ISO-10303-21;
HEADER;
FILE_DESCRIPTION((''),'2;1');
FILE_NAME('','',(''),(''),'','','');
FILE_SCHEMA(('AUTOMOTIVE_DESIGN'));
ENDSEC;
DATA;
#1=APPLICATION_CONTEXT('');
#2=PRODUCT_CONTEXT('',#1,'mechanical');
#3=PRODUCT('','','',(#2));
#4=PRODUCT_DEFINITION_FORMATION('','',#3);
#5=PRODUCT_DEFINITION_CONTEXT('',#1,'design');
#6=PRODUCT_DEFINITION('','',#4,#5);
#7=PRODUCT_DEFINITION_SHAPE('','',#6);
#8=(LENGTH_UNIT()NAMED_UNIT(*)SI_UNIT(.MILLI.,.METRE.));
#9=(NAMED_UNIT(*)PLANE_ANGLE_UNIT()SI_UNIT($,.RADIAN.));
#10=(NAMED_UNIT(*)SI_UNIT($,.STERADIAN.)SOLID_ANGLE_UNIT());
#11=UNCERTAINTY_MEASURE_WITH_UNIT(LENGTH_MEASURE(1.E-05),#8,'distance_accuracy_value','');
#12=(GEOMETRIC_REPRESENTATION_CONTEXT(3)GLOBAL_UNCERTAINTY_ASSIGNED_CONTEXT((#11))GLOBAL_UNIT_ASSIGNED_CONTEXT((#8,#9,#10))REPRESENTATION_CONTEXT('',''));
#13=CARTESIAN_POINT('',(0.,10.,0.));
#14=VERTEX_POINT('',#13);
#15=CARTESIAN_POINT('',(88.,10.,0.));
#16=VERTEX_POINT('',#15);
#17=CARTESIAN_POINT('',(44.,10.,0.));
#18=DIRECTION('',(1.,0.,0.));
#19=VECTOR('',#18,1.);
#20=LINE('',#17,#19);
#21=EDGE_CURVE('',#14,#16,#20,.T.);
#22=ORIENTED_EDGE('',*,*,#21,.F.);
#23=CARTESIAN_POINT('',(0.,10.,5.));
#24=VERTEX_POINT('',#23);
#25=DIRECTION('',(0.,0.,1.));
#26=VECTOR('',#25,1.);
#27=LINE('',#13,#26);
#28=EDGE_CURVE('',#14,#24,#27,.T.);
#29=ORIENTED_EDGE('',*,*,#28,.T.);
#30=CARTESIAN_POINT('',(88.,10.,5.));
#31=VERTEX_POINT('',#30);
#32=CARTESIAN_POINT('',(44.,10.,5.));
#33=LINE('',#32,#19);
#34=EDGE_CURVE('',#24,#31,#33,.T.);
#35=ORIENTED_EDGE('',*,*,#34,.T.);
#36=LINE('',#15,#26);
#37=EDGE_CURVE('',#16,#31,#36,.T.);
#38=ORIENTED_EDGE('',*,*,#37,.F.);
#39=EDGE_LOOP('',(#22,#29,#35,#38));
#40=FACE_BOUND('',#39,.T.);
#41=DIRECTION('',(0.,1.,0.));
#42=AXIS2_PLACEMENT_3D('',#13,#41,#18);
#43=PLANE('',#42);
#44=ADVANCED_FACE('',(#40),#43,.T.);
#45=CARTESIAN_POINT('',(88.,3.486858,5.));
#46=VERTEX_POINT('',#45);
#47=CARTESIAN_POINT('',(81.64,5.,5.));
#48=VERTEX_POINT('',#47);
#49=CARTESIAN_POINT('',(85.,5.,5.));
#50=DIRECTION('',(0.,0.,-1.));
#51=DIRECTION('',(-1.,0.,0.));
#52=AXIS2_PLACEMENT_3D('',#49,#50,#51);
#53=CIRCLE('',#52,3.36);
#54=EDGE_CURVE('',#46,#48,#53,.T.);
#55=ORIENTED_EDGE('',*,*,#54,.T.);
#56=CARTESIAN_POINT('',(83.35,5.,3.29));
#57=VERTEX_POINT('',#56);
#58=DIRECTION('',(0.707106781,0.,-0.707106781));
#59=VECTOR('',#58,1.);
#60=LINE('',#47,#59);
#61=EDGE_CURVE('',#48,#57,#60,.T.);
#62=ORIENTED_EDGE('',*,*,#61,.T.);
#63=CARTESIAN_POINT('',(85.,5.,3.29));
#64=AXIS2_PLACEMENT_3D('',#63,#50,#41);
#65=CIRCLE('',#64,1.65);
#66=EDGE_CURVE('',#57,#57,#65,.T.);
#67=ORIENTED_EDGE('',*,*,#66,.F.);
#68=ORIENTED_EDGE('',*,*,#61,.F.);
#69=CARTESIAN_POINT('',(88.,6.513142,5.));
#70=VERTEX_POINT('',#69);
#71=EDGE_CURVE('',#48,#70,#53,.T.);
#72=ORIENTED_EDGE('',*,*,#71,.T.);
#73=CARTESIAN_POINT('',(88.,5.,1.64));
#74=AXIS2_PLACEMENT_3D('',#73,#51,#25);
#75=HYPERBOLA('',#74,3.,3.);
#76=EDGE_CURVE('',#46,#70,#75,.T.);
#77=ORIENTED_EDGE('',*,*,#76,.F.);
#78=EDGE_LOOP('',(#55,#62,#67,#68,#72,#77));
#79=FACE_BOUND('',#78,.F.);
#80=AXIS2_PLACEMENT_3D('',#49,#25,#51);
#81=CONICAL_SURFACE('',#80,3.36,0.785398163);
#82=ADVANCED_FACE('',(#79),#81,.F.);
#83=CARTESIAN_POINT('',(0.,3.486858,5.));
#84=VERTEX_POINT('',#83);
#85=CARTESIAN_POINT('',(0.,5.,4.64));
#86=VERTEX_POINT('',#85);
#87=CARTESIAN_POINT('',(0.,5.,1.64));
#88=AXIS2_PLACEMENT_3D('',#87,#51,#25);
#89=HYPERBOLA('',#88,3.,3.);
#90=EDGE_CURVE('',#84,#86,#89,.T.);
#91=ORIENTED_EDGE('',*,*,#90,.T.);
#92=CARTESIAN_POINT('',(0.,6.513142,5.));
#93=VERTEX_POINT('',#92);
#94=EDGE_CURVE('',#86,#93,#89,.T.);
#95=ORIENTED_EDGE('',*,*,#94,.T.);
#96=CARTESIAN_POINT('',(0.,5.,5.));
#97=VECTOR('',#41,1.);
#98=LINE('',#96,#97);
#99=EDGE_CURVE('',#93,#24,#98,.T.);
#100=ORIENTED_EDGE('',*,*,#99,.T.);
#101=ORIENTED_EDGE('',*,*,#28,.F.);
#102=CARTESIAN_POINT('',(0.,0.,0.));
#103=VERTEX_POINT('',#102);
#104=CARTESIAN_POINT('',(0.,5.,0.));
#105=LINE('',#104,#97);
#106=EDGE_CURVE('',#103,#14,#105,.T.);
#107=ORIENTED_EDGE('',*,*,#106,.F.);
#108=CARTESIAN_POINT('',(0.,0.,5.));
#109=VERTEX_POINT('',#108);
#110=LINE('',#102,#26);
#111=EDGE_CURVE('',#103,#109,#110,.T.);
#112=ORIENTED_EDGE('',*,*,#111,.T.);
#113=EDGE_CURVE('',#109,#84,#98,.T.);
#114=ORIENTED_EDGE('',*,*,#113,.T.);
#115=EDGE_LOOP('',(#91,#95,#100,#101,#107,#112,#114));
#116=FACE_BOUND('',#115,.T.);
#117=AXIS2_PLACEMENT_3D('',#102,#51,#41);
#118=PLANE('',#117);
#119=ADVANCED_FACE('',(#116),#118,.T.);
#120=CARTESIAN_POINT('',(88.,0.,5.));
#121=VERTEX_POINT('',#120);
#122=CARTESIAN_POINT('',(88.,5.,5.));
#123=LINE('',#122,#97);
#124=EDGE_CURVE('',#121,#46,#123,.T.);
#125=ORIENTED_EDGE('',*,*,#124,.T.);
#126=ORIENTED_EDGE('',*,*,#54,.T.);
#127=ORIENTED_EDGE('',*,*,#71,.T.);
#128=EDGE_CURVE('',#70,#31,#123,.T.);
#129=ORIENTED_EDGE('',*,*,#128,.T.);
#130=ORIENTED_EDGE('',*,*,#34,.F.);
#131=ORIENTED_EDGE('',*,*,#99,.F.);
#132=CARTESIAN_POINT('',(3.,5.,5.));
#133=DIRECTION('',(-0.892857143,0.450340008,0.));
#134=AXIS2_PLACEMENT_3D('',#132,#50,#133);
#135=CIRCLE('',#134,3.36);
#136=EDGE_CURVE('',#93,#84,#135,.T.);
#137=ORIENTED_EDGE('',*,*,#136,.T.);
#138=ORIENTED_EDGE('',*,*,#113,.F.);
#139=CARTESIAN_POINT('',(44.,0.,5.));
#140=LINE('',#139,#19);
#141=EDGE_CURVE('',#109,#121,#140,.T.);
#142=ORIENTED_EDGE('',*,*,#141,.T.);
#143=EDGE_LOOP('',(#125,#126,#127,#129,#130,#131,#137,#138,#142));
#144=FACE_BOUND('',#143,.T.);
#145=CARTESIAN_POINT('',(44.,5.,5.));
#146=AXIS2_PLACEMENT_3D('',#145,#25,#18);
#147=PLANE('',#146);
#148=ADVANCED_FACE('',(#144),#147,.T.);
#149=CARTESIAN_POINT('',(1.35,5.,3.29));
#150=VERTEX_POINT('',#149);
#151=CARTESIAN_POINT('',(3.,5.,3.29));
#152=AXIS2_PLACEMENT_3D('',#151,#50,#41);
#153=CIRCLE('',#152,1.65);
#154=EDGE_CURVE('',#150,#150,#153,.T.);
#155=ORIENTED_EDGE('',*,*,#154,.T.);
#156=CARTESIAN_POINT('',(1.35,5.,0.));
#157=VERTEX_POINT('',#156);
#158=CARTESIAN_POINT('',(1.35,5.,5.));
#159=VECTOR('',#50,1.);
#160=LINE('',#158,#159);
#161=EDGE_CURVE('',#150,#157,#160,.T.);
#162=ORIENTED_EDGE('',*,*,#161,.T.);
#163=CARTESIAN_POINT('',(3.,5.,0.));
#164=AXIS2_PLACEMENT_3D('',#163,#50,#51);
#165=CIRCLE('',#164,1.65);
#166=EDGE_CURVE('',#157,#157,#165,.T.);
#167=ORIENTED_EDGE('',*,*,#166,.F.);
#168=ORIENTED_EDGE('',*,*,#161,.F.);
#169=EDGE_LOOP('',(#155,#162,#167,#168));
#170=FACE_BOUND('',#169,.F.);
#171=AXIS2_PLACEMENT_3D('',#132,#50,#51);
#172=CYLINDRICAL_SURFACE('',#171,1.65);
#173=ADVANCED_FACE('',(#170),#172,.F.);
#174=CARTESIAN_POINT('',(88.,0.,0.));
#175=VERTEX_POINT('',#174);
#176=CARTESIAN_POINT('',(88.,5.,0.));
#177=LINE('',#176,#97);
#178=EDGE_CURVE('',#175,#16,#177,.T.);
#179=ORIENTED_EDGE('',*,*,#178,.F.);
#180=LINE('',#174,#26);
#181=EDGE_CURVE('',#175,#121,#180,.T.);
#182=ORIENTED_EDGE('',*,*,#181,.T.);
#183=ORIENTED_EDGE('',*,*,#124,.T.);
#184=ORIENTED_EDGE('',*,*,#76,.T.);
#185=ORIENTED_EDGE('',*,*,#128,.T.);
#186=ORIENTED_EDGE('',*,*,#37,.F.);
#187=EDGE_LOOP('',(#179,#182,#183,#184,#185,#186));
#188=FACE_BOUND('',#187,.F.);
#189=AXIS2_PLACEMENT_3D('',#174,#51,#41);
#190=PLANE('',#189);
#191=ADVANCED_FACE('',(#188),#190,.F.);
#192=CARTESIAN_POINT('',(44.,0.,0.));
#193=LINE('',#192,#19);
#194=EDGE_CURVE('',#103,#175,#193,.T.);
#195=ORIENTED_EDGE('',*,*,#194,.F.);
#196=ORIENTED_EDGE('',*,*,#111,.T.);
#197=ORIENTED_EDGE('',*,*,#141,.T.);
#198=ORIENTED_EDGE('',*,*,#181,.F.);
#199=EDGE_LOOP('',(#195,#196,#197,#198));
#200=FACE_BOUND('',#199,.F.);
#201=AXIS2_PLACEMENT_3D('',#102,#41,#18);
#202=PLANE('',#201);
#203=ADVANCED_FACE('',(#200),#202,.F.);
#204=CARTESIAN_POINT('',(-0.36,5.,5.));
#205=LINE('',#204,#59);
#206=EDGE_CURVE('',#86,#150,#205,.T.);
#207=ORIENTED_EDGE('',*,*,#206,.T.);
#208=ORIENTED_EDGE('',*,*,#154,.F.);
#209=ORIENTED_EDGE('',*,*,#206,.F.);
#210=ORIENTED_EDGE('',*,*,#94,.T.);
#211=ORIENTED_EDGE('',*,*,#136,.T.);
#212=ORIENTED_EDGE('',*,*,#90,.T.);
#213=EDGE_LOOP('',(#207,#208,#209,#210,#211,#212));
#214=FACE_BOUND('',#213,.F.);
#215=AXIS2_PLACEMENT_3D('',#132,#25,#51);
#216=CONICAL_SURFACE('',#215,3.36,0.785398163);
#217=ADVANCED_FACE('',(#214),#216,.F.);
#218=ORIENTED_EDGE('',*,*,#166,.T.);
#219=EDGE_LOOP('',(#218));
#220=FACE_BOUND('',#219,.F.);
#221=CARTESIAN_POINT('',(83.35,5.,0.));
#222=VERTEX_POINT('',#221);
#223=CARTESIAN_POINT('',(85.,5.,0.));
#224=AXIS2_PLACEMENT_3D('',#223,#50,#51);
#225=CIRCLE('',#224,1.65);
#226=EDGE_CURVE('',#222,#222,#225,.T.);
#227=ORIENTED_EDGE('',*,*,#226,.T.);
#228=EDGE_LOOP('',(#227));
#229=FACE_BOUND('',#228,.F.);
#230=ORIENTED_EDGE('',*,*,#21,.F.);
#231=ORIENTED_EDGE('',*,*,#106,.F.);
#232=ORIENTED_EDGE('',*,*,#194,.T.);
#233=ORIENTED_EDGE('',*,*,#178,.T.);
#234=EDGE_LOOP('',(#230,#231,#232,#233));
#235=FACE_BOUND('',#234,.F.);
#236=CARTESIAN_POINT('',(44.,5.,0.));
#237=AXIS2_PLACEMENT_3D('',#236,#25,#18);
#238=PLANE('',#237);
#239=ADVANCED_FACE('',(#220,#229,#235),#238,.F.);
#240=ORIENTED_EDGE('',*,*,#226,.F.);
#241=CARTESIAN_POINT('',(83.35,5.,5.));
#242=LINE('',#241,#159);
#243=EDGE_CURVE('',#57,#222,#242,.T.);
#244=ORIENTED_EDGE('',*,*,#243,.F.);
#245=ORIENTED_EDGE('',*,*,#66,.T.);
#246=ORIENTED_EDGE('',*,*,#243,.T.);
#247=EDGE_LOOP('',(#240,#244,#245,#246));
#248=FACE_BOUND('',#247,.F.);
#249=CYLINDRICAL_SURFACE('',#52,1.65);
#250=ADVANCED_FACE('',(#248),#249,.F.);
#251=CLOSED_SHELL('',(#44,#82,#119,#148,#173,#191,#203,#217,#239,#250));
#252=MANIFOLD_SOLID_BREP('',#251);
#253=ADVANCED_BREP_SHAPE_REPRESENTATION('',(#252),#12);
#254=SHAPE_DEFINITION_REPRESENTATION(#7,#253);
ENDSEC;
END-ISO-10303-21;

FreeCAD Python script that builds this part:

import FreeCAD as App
import Part
import Sketcher
from FreeCAD import Vector


def add_polygon(sketch, points):
    """Adds a closed chain of lines whose ends are joined by coincident constraints."""
    first, n = sketch.GeometryCount, len(points)
    for a, b in zip(points, points[1:] + points[:1]):
        sketch.addGeometry(Part.LineSegment(App.Vector(*a, 0), App.Vector(*b, 0)), False)
    for i in range(n):
        sketch.addConstraint(Sketcher.Constraint("Coincident", first + i, 2, first + (i + 1) % n, 1))

doc = App.newDocument("Part")
params = doc.addObject("Spreadsheet::Sheet", "Params")
for row, (alias, value) in enumerate([
    ("sketch1_width", "88 mm"),
    ("sketch1_height", "10 mm"),
    ("pad1_length", "5 mm"),
    ("sketch2_diameter", "3.3 mm"),
    ("hole_diameter", "3.3 mm"),
    ("hole_depth", "15 mm"),
    ("hole_csink_diameter", "6.72 mm"),
], start=1):
    params.set(f"A{row}", alias)
    params.set(f"B{row}", "=" + value)
    params.setAlias(f"B{row}", alias)

body = doc.addObject("PartDesign::Body", "Body")

# Sketch on XY plane
sketch1 = doc.addObject("Sketcher::SketchObject", "Sketch")
body.addObject(sketch1)
sketch1.AttachmentSupport = (doc.XY_Plane, [""])
sketch1.MapMode = "FlatFace"
add_polygon(sketch1, [(0, 10), (0, 0), (88, 0), (88, 10)])  # lines 0-3
sketch1.addConstraint([
    Sketcher.Constraint("Vertical", 0),
    Sketcher.Constraint("Horizontal", 1),
    Sketcher.Constraint("Vertical", 2),
    Sketcher.Constraint("Horizontal", 3),
    Sketcher.Constraint("Coincident", 0, 2, -1, 1),
    Sketcher.Constraint("DistanceX", 1, 1, 1, 2, 88.0),
    Sketcher.Constraint("DistanceY", 0, 2, 0, 1, 10.0),
])
sketch1.setExpression("Constraints[9]", "Params.sketch1_width")
sketch1.setExpression("Constraints[10]", "Params.sketch1_height")
pad1 = doc.addObject("PartDesign::Pad", "Pad")
body.addObject(pad1)
pad1.Profile = sketch1
pad1.setExpression("Length", "Params.pad1_length")

# Sketch on XY plane
sketch2 = doc.addObject("Sketcher::SketchObject", "Sketch001")
body.addObject(sketch2)
sketch2.AttachmentSupport = (doc.XY_Plane, [""])
sketch2.MapMode = "FlatFace"
sketch2.AttachmentOffset = App.Placement(Vector(0, 0, 5), App.Rotation())
sketch2.addGeometry([
    Part.Circle(Vector(85, 5, 0), Vector(0, 0, 1), 1.6),
    Part.Circle(Vector(3, 5, 0), Vector(0, 0, 1), 1.6),
], False)
sketch2.addConstraint([
    Sketcher.Constraint("Equal", 0, 1),
    Sketcher.Constraint("Horizontal", 0, 3, 1, 3),
    Sketcher.Constraint("Diameter", 0, 3.3),
    Sketcher.Constraint("DistanceX", -1, 1, 0, 3, 85.0),
    Sketcher.Constraint("DistanceY", -1, 1, 0, 3, 5.0),
    Sketcher.Constraint("DistanceX", -1, 1, 1, 3, 3.0),
])
sketch2.setExpression("Constraints[2]", "Params.sketch2_diameter")
doc.recompute()
hole = doc.addObject("PartDesign::Hole", "Hole")
body.addObject(hole)
hole.Profile = sketch2
hole.ThreadType = "None"
hole.setExpression("Diameter", "Params.hole_diameter")
hole.DepthType = "Dimension"
hole.setExpression("Depth", "Params.hole_depth")
hole.DrillPoint = "Angled"
hole.DrillPointAngle = 118
hole.HoleCutType = "Countersink"
hole.setExpression("HoleCutDiameter", "Params.hole_csink_diameter")
hole.HoleCutCountersinkAngle = 90

doc.recompute()
